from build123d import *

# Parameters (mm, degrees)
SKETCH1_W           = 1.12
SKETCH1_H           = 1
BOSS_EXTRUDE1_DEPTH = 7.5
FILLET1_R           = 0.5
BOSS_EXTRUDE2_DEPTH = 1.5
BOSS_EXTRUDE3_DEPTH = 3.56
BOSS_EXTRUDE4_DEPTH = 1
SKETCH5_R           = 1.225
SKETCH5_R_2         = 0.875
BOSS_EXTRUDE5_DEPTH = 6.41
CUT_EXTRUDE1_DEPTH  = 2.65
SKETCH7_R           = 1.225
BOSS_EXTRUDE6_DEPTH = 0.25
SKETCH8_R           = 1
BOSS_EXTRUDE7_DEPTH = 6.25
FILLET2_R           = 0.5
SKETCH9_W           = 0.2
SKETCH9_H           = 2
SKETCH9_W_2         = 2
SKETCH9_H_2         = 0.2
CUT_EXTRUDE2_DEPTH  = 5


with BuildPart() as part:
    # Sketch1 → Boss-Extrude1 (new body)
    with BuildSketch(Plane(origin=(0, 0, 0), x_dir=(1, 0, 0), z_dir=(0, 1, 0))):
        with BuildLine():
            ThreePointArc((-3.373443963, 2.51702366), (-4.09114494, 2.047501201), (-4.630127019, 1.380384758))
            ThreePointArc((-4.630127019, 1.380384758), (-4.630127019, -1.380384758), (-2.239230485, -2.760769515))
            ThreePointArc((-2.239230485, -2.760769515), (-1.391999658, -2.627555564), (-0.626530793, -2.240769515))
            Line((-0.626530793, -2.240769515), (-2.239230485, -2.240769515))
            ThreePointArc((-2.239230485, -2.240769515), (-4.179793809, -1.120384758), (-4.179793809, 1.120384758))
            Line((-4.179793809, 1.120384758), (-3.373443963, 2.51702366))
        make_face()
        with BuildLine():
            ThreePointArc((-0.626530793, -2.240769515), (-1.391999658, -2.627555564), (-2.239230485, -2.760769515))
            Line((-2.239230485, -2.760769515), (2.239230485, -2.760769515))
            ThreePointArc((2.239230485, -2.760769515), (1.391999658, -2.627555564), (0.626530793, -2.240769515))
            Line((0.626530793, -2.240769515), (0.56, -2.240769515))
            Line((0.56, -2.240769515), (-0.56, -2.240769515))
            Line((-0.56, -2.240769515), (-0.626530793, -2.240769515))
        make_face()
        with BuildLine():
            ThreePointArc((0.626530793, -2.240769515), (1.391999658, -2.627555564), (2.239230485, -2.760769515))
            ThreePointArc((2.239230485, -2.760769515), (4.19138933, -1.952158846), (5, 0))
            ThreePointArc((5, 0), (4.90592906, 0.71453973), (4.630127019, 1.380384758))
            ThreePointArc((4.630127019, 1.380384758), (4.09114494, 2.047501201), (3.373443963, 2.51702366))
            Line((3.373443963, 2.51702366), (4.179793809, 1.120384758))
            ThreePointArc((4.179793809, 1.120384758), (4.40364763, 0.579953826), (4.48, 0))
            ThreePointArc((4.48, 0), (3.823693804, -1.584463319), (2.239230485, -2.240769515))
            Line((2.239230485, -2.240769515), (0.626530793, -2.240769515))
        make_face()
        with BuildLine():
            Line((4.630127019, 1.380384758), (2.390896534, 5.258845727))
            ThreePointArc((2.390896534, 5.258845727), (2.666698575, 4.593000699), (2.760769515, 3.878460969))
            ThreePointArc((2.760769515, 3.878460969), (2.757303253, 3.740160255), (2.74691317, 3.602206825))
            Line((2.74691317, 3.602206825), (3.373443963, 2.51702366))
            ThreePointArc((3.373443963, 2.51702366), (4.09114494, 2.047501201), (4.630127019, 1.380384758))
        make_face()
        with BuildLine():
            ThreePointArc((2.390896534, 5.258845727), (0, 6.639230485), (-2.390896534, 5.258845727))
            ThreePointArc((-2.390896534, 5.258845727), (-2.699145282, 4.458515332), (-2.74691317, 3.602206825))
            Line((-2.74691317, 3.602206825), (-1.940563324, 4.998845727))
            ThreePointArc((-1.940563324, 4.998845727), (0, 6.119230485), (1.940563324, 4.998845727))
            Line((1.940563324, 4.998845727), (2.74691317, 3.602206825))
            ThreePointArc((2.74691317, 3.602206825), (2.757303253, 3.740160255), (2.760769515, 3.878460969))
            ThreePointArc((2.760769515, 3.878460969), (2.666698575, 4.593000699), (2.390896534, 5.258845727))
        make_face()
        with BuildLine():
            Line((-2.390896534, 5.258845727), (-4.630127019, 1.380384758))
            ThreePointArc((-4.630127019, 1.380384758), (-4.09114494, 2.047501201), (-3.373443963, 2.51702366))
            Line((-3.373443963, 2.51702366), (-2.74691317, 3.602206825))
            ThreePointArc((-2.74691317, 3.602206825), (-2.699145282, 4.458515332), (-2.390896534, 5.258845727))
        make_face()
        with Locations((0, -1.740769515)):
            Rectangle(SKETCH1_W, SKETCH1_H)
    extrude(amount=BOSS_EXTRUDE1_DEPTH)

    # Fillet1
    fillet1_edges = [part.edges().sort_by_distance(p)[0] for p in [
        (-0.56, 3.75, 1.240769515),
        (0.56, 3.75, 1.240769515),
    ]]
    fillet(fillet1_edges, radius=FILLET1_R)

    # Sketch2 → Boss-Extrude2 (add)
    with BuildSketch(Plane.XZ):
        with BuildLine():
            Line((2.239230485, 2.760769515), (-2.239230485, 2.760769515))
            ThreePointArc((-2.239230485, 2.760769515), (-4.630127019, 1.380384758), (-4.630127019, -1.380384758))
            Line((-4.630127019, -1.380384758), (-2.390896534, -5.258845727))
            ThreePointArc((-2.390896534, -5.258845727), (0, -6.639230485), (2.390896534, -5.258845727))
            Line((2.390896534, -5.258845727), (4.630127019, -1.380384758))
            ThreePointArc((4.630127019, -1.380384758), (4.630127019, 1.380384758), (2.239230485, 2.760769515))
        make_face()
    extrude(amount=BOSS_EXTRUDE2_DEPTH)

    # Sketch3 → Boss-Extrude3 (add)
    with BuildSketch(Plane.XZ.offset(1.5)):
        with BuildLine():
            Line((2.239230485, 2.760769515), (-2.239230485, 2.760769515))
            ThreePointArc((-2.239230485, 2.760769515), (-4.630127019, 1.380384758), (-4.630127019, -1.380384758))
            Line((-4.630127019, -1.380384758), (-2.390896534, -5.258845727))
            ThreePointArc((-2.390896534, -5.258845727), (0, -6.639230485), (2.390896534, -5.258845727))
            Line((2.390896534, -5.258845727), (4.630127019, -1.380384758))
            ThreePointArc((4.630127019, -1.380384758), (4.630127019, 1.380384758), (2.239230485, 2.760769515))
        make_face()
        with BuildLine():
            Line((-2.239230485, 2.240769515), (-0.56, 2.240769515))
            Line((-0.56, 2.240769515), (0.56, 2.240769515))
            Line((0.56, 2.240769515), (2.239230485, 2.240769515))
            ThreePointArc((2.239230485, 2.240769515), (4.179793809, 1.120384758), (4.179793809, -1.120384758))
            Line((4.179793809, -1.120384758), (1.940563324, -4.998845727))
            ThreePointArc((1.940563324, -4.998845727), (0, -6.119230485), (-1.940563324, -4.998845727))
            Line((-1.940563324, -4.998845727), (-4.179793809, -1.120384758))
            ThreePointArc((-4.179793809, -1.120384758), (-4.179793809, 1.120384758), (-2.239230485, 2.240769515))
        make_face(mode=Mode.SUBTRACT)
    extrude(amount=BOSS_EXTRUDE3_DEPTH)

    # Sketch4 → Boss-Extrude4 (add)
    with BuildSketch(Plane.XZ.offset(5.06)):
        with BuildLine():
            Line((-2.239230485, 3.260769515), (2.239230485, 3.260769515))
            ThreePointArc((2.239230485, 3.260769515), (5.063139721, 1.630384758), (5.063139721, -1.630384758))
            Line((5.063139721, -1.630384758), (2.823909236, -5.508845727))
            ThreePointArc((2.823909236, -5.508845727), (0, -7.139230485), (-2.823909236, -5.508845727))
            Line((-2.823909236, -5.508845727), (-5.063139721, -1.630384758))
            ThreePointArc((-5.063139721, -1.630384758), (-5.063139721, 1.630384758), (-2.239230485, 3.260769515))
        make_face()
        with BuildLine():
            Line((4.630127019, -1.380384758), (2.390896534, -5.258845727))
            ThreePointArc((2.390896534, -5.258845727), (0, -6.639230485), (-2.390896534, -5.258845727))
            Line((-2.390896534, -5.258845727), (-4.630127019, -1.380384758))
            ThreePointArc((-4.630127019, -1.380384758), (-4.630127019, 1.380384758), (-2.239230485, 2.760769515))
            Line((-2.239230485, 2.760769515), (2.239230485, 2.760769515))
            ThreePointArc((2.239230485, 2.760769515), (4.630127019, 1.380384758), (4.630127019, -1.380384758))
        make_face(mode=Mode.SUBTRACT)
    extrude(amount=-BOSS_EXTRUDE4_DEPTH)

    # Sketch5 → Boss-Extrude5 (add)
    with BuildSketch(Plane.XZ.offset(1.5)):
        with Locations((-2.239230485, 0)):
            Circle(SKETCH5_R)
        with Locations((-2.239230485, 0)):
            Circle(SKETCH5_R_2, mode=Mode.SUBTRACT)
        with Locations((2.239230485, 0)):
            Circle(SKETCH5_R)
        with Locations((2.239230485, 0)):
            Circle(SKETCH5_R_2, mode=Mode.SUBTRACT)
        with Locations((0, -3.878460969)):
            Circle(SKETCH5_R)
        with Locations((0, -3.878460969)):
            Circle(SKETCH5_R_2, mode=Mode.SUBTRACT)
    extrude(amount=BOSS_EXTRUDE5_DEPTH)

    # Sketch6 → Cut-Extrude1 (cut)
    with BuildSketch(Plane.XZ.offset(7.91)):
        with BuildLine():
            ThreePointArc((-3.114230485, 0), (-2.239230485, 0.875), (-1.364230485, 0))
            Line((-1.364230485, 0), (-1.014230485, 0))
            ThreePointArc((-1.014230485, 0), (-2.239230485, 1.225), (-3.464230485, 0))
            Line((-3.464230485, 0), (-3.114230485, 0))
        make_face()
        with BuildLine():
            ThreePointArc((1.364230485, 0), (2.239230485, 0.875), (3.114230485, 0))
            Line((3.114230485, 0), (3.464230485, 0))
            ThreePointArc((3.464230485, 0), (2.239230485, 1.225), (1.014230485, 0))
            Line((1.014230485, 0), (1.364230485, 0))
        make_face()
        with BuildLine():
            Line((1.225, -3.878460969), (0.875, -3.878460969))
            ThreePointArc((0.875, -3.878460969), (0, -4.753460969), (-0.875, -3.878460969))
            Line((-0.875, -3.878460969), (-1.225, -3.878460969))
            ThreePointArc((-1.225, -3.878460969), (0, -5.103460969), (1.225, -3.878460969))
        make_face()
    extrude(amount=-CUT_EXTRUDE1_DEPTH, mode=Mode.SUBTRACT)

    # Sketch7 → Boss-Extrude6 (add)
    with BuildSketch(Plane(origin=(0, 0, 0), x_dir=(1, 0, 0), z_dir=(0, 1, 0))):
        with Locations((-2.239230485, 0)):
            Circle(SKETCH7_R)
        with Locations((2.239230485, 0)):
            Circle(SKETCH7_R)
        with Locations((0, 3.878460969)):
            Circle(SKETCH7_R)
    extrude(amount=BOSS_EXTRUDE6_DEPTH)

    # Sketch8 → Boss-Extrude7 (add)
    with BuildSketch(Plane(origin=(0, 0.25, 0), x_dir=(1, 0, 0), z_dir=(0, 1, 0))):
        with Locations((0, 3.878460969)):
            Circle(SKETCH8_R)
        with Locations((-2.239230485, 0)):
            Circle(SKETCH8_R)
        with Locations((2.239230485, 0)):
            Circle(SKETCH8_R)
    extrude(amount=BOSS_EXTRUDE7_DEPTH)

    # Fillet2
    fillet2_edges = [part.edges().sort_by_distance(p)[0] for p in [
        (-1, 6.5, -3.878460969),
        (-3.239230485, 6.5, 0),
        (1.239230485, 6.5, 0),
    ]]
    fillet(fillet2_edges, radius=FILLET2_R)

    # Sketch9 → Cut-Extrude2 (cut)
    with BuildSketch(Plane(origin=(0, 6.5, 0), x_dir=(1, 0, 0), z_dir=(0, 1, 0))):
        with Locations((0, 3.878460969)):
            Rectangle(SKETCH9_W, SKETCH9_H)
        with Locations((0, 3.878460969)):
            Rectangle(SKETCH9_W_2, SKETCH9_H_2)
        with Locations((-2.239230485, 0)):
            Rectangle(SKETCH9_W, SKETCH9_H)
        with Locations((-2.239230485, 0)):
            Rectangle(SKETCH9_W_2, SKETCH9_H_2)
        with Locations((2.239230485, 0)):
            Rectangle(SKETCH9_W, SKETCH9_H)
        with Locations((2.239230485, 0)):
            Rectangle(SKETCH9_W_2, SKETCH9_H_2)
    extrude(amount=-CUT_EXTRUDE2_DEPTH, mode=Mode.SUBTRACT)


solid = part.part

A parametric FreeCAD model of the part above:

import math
import FreeCAD as App
import Part
import Sketcher
Q = App.Units.Quantity


def edges_at(feature, points):
    """Names of the edges that pass closest to the given points."""
    edges = feature.Shape.Edges
    near = lambda p: min(range(len(edges)), key=lambda i: edges[i].distToShape(Part.Vertex(*p))[0])
    return sorted({f"Edge{near(p) + 1}" for p in points})


def add_polygon(sketch, points):
    """Adds a closed chain of lines whose ends are joined by coincident constraints."""
    first, n = sketch.GeometryCount, len(points)
    for a, b in zip(points, points[1:] + points[:1]):
        sketch.addGeometry(Part.LineSegment(App.Vector(*a, 0), App.Vector(*b, 0)), False)
    for i in range(n):
        sketch.addConstraint(Sketcher.Constraint("Coincident", first + i, 2, first + (i + 1) % n, 1))

doc = App.newDocument("Part")
body = doc.addObject("PartDesign::Body", "Body")

# Sketch on XZ plane
sketch1 = body.newObject("Sketcher::SketchObject", "Sketch")
sketch1.AttachmentSupport = (doc.getObject("XZ_Plane"), [""])
sketch1.MapMode = "FlatFace"
sketch1.addGeometry(Part.ArcOfCircle(Part.Circle(App.Vector(-2.2, 0, 0), App.Vector(0, 0, 1), 2.8), math.radians(90), math.radians(210)), False)
sketch1.addGeometry(Part.LineSegment(App.Vector(-2.2, 2.8, 0), App.Vector(2.2, 2.8, 0)), False)
sketch1.addGeometry(Part.ArcOfCircle(Part.Circle(App.Vector(2.2, 0, 0), App.Vector(0, 0, 1), 2.8), math.radians(0), math.radians(90)), False)
sketch1.addGeometry(Part.ArcOfCircle(Part.Circle(App.Vector(2.2, 0, 0), App.Vector(0, 0, 1), 2.8), math.radians(-30), math.radians(0)), False)
sketch1.addGeometry(Part.LineSegment(App.Vector(4.6, -1.4, 0), App.Vector(2.4, -5.3, 0)), False)
sketch1.addGeometry(Part.ArcOfCircle(Part.Circle(App.Vector(0, -3.9, 0), App.Vector(0, 0, 1), 2.8), math.radians(-150), math.radians(-30)), False)
sketch1.addGeometry(Part.LineSegment(App.Vector(-2.4, -5.3, 0), App.Vector(-4.6, -1.4, 0)), False)
sketch1.addGeometry(Part.LineSegment(App.Vector(-2.7, -3.6, 0), App.Vector(-1.9, -5, 0)), False)
sketch1.addGeometry(Part.ArcOfCircle(Part.Circle(App.Vector(0, -3.9, 0), App.Vector(0, 0, 1), 2.2), math.radians(-150), math.radians(-30)), False)
sketch1.addGeometry(Part.LineSegment(App.Vector(1.9, -5, 0), App.Vector(2.7, -3.6, 0)), False)
sketch1.addGeometry(Part.LineSegment(App.Vector(2.7, -3.6, 0), App.Vector(3.4, -2.5, 0)), False)
sketch1.addGeometry(Part.LineSegment(App.Vector(3.4, -2.5, 0), App.Vector(4.2, -1.1, 0)), False)
sketch1.addGeometry(Part.ArcOfCircle(Part.Circle(App.Vector(2.2, 0, 0), App.Vector(0, 0, 1), 2.2), math.radians(-30), math.radians(0)), False)
sketch1.addGeometry(Part.ArcOfCircle(Part.Circle(App.Vector(2.2, 0, 0), App.Vector(0, 0, 1), 2.2), math.radians(0), math.radians(90)), False)
sketch1.addGeometry(Part.LineSegment(App.Vector(2.2, 2.2, 0), App.Vector(0.6, 2.2, 0)), False)
sketch1.addGeometry(Part.LineSegment(App.Vector(0.6, 2.2, 0), App.Vector(0.6, 1.2, 0)), False)
sketch1.addGeometry(Part.LineSegment(App.Vector(0.6, 1.2, 0), App.Vector(-0.6, 1.2, 0)), False)
sketch1.addGeometry(Part.LineSegment(App.Vector(-0.6, 1.2, 0), App.Vector(-0.6, 2.2, 0)), False)
sketch1.addGeometry(Part.LineSegment(App.Vector(-0.6, 2.2, 0), App.Vector(-2.2, 2.2, 0)), False)
sketch1.addGeometry(Part.ArcOfCircle(Part.Circle(App.Vector(-2.2, 0, 0), App.Vector(0, 0, 1), 2.2), math.radians(90), math.radians(210)), False)
sketch1.addGeometry(Part.LineSegment(App.Vector(-4.2, -1.1, 0), App.Vector(-3.4, -2.5, 0)), False)
sketch1.addGeometry(Part.LineSegment(App.Vector(-3.4, -2.5, 0), App.Vector(-2.7, -3.6, 0)), False)
sketch1.addConstraint(Sketcher.Constraint("Tangent", 0, 1, 1, 1))
sketch1.addConstraint(Sketcher.Constraint("Tangent", 1, 2, 2, 2))
sketch1.addConstraint(Sketcher.Constraint("Tangent", 2, 1, 3, 2))
sketch1.addConstraint(Sketcher.Constraint("Tangent", 3, 1, 4, 1))
sketch1.addConstraint(Sketcher.Constraint("Tangent", 4, 2, 5, 2))
sketch1.addConstraint(Sketcher.Constraint("Tangent", 5, 1, 6, 1))
sketch1.addConstraint(Sketcher.Constraint("Tangent", 6, 2, 0, 2))
sketch1.addConstraint(Sketcher.Constraint("Tangent", 7, 2, 8, 1))
sketch1.addConstraint(Sketcher.Constraint("Tangent", 8, 2, 9, 1))
sketch1.addConstraint(Sketcher.Constraint("Coincident", 9, 2, 10, 1))
sketch1.addConstraint(Sketcher.Constraint("Coincident", 10, 2, 11, 1))
sketch1.addConstraint(Sketcher.Constraint("Tangent", 11, 2, 12, 1))
sketch1.addConstraint(Sketcher.Constraint("Tangent", 12, 2, 13, 1))
sketch1.addConstraint(Sketcher.Constraint("Tangent", 13, 2, 14, 1))
sketch1.addConstraint(Sketcher.Constraint("Coincident", 14, 2, 15, 1))
sketch1.addConstraint(Sketcher.Constraint("Coincident", 15, 2, 16, 1))
sketch1.addConstraint(Sketcher.Constraint("Coincident", 16, 2, 17, 1))
sketch1.addConstraint(Sketcher.Constraint("Coincident", 17, 2, 18, 1))
sketch1.addConstraint(Sketcher.Constraint("Tangent", 18, 2, 19, 1))
sketch1.addConstraint(Sketcher.Constraint("Tangent", 19, 2, 20, 1))
sketch1.addConstraint(Sketcher.Constraint("Coincident", 20, 2, 21, 1))
sketch1.addConstraint(Sketcher.Constraint("Coincident", 21, 2, 7, 1))
sketch1.addConstraint(Sketcher.Constraint("Horizontal", 1))
sketch1.addConstraint(Sketcher.Constraint("Horizontal", 14))
sketch1.addConstraint(Sketcher.Constraint("Vertical", 15))
sketch1.addConstraint(Sketcher.Constraint("Horizontal", 16))
sketch1.addConstraint(Sketcher.Constraint("Vertical", 17))
sketch1.addConstraint(Sketcher.Constraint("Horizontal", 18))
sketch1.addConstraint(Sketcher.Constraint("Coincident", 8, 3, 5, 3))
sketch1.addConstraint(Sketcher.Constraint("Coincident", 12, 3, 2, 3))
sketch1.addConstraint(Sketcher.Constraint("Coincident", 19, 3, 0, 3))
sketch1.addConstraint(Sketcher.Constraint("Equal", 0, 2))
sketch1.addConstraint(Sketcher.Constraint("Equal", 2, 3))
sketch1.addConstraint(Sketcher.Constraint("Equal", 3, 5))
sketch1.addConstraint(Sketcher.Constraint("Equal", 8, 12))
sketch1.addConstraint(Sketcher.Constraint("Equal", 12, 13))
sketch1.addConstraint(Sketcher.Constraint("Equal", 13, 19))
sketch1.addConstraint(Sketcher.Constraint("Symmetric", 0, 3, 2, 3, -1, 1))
sketch1.addConstraint(Sketcher.Constraint("Symmetric", 7, 2, 8, 2, -2))
sketch1.addConstraint(Sketcher.Constraint("Symmetric", 10, 2, 20, 2, -2))
sketch1.addConstraint(Sketcher.Constraint("PointOnObject", 2, 1, -1))
sketch1.addConstraint(Sketcher.Constraint("PointOnObject", 12, 2, -1))
sketch1.addConstraint(Sketcher.Constraint("Parallel", 6, 7))
sketch1.addConstraint(Sketcher.Constraint("Parallel", 9, 10))
sketch1.addConstraint(Sketcher.Constraint("Horizontal", 9, 2, 21, 2))
sketch1.addConstraint(Sketcher.Constraint("Equal", 14, 18))
sketch1.addConstraint(Sketcher.Constraint("Equal", 9, 11))
sketch1.addConstraint(Sketcher.Constraint("DistanceY", 15, 2, 15, 1, Q("1 mm")))
sketch1.addConstraint(Sketcher.Constraint("Angle", 4, Q("-120 deg")))
sketch1.addConstraint(Sketcher.Constraint("DistanceX", -1, 1, 2, 1, Q("5 mm")))
sketch1.addConstraint(Sketcher.Constraint("DistanceX", 16, 2, 16, 1, Q("1.12 mm")))
sketch1.addConstraint(Sketcher.Constraint("DistanceX", -1, 1, 12, 2, Q("4.48 mm")))
sketch1.addConstraint(Sketcher.Constraint("Radius", 0, Q("2.76077 mm")))
sketch1.addConstraint(Sketcher.Constraint("Distance", 7, Q("1.6127 mm")))
pad1 = body.newObject("PartDesign::Pad", "Pad")
pad1.Profile = sketch1
pad1.Length = 7.5
pad1.Reversed = True
doc.recompute()

fillet = body.newObject("PartDesign::Fillet", "Fillet")
fillet.Base = (pad1, edges_at(pad1, [(-0.56, 3.75, 1.241), (0.56, 3.75, 1.241)]))
fillet.Radius = 0.5

# Sketch on XZ plane
sketch2 = body.newObject("Sketcher::SketchObject", "Sketch001")
sketch2.AttachmentSupport = (doc.getObject("XZ_Plane"), [""])
sketch2.MapMode = "FlatFace"
sketch2.addGeometry(Part.LineSegment(App.Vector(2.2, 2.8, 0), App.Vector(-2.2, 2.8, 0)), False)
sketch2.addGeometry(Part.ArcOfCircle(Part.Circle(App.Vector(-2.2, 0, 0), App.Vector(0, 0, 1), 2.8), math.radians(90), math.radians(210)), False)
sketch2.addGeometry(Part.LineSegment(App.Vector(-4.6, -1.4, 0), App.Vector(-2.4, -5.3, 0)), False)
sketch2.addGeometry(Part.ArcOfCircle(Part.Circle(App.Vector(0, -3.9, 0), App.Vector(0, 0, 1), 2.8), math.radians(-150), math.radians(-30)), False)
sketch2.addGeometry(Part.LineSegment(App.Vector(2.4, -5.3, 0), App.Vector(4.6, -1.4, 0)), False)
sketch2.addGeometry(Part.ArcOfCircle(Part.Circle(App.Vector(2.2, 0, 0), App.Vector(0, 0, 1), 2.8), math.radians(-30), math.radians(90)), False)
sketch2.addConstraint(Sketcher.Constraint("Tangent", 0, 2, 1, 1))
sketch2.addConstraint(Sketcher.Constraint("Tangent", 1, 2, 2, 1))
sketch2.addConstraint(Sketcher.Constraint("Tangent", 2, 2, 3, 1))
sketch2.addConstraint(Sketcher.Constraint("Tangent", 3, 2, 4, 1))
sketch2.addConstraint(Sketcher.Constraint("Tangent", 4, 2, 5, 1))
sketch2.addConstraint(Sketcher.Constraint("Tangent", 5, 2, 0, 1))
sketch2.addConstraint(Sketcher.Constraint("Horizontal", 0))
sketch2.addConstraint(Sketcher.Constraint("Equal", 1, 3))
sketch2.addConstraint(Sketcher.Constraint("Equal", 3, 5))
sketch2.addConstraint(Sketcher.Constraint("Symmetric", 1, 3, 5, 3, -1, 1))
sketch2.addConstraint(Sketcher.Constraint("PointOnObject", 3, 3, -2))
sketch2.addConstraint(Sketcher.Constraint("Angle", 2, Q("-60 deg")))
sketch2.addConstraint(Sketcher.Constraint("Radius", 1, Q("2.76077 mm")))
sketch2.addConstraint(Sketcher.Constraint("DistanceX", 0, 2, 0, 1, Q("4.478461 mm")))
pad2 = body.newObject("PartDesign::Pad", "Pad001")
pad2.Profile = sketch2
pad2.Length = 1.5

# Sketch on XZ plane
sketch3 = body.newObject("Sketcher::SketchObject", "Sketch002")
sketch3.AttachmentSupport = (doc.getObject("XZ_Plane"), [""])
sketch3.MapMode = "FlatFace"
sketch3.AttachmentOffset = App.Placement(App.Vector(0, 0, 1.5), App.Rotation())
sketch3.addGeometry(Part.LineSegment(App.Vector(2.2, 2.8, 0), App.Vector(-2.2, 2.8, 0)), False)
sketch3.addGeometry(Part.ArcOfCircle(Part.Circle(App.Vector(-2.2, 0, 0), App.Vector(0, 0, 1), 2.8), math.radians(90), math.radians(210)), False)
sketch3.addGeometry(Part.LineSegment(App.Vector(-4.6, -1.4, 0), App.Vector(-2.4, -5.3, 0)), False)
sketch3.addGeometry(Part.ArcOfCircle(Part.Circle(App.Vector(0, -3.9, 0), App.Vector(0, 0, 1), 2.8), math.radians(-150), math.radians(-30)), False)
sketch3.addGeometry(Part.LineSegment(App.Vector(2.4, -5.3, 0), App.Vector(4.6, -1.4, 0)), False)
sketch3.addGeometry(Part.ArcOfCircle(Part.Circle(App.Vector(2.2, 0, 0), App.Vector(0, 0, 1), 2.8), math.radians(-30), math.radians(90)), False)
sketch3.addGeometry(Part.ArcOfCircle(Part.Circle(App.Vector(-2.2, 0, 0), App.Vector(0, 0, 1), 2.2), math.radians(90), math.radians(210)), False)
sketch3.addGeometry(Part.LineSegment(App.Vector(-2.2, 2.2, 0), App.Vector(2.2, 2.2, 0)), False)
sketch3.addGeometry(Part.ArcOfCircle(Part.Circle(App.Vector(2.2, 0, 0), App.Vector(0, 0, 1), 2.2), math.radians(-30), math.radians(90)), False)
sketch3.addGeometry(Part.LineSegment(App.Vector(4.2, -1.1, 0), App.Vector(1.9, -5, 0)), False)
sketch3.addGeometry(Part.ArcOfCircle(Part.Circle(App.Vector(0, -3.9, 0), App.Vector(0, 0, 1), 2.2), math.radians(-150), math.radians(-30)), False)
sketch3.addGeometry(Part.LineSegment(App.Vector(-1.9, -5, 0), App.Vector(-4.2, -1.1, 0)), False)
sketch3.addConstraint(Sketcher.Constraint("Tangent", 0, 2, 1, 1))
sketch3.addConstraint(Sketcher.Constraint("Tangent", 1, 2, 2, 1))
sketch3.addConstraint(Sketcher.Constraint("Tangent", 2, 2, 3, 1))
sketch3.addConstraint(Sketcher.Constraint("Tangent", 3, 2, 4, 1))
sketch3.addConstraint(Sketcher.Constraint("Tangent", 4, 2, 5, 1))
sketch3.addConstraint(Sketcher.Constraint("Tangent", 5, 2, 0, 1))
sketch3.addConstraint(Sketcher.Constraint("Tangent", 6, 1, 7, 1))
sketch3.addConstraint(Sketcher.Constraint("Tangent", 7, 2, 8, 2))
sketch3.addConstraint(Sketcher.Constraint("Tangent", 8, 1, 9, 1))
sketch3.addConstraint(Sketcher.Constraint("Tangent", 9, 2, 10, 2))
sketch3.addConstraint(Sketcher.Constraint("Tangent", 10, 1, 11, 1))
sketch3.addConstraint(Sketcher.Constraint("Tangent", 11, 2, 6, 2))
sketch3.addConstraint(Sketcher.Constraint("Horizontal", 0))
sketch3.addConstraint(Sketcher.Constraint("Horizontal", 7))
sketch3.addConstraint(Sketcher.Constraint("Coincident", 6, 3, 1, 3))
sketch3.addConstraint(Sketcher.Constraint("Coincident", 8, 3, 5, 3))
sketch3.addConstraint(Sketcher.Constraint("Coincident", 10, 3, 3, 3))
sketch3.addConstraint(Sketcher.Constraint("Equal", 1, 3))
sketch3.addConstraint(Sketcher.Constraint("Equal", 3, 5))
sketch3.addConstraint(Sketcher.Constraint("Equal", 8, 10))
sketch3.addConstraint(Sketcher.Constraint("Symmetric", 1, 3, 5, 3, -1, 1))
sketch3.addConstraint(Sketcher.Constraint("PointOnObject", 3, 3, -2))
sketch3.addConstraint(Sketcher.Constraint("Angle", 2, Q("-60 deg")))
sketch3.addConstraint(Sketcher.Constraint("Radius", 1, Q("2.76077 mm")))
sketch3.addConstraint(Sketcher.Constraint("Radius", 6, Q("2.24077 mm")))
sketch3.addConstraint(Sketcher.Constraint("DistanceX", 0, 2, 0, 1, Q("4.478461 mm")))
pad3 = body.newObject("PartDesign::Pad", "Pad002")
pad3.Profile = sketch3
pad3.Length = 3.56

# Sketch on XZ plane
sketch4 = body.newObject("Sketcher::SketchObject", "Sketch003")
sketch4.AttachmentSupport = (doc.getObject("XZ_Plane"), [""])
sketch4.MapMode = "FlatFace"
sketch4.AttachmentOffset = App.Placement(App.Vector(0, 0, 5.06), App.Rotation())
sketch4.addGeometry(Part.LineSegment(App.Vector(2.2, 3.3, 0), App.Vector(-2.2, 3.3, 0)), False)
sketch4.addGeometry(Part.ArcOfCircle(Part.Circle(App.Vector(-2.2, 0, 0), App.Vector(0, 0, 1), 3.3), math.radians(90), math.radians(210)), False)
sketch4.addGeometry(Part.LineSegment(App.Vector(-5.1, -1.6, 0), App.Vector(-2.8, -5.5, 0)), False)
sketch4.addGeometry(Part.ArcOfCircle(Part.Circle(App.Vector(0, -3.9, 0), App.Vector(0, 0, 1), 3.3), math.radians(-150), math.radians(-30)), False)
sketch4.addGeometry(Part.LineSegment(App.Vector(2.8, -5.5, 0), App.Vector(5.1, -1.6, 0)), False)
sketch4.addGeometry(Part.ArcOfCircle(Part.Circle(App.Vector(2.2, 0, 0), App.Vector(0, 0, 1), 3.3), math.radians(-30), math.radians(90)), False)
sketch4.addGeometry(Part.LineSegment(App.Vector(4.6, -1.4, 0), App.Vector(2.4, -5.3, 0)), False)
sketch4.addGeometry(Part.ArcOfCircle(Part.Circle(App.Vector(0, -3.9, 0), App.Vector(0, 0, 1), 2.8), math.radians(-150), math.radians(-30)), False)
sketch4.addGeometry(Part.LineSegment(App.Vector(-2.4, -5.3, 0), App.Vector(-4.6, -1.4, 0)), False)
sketch4.addGeometry(Part.ArcOfCircle(Part.Circle(App.Vector(-2.2, 0, 0), App.Vector(0, 0, 1), 2.8), math.radians(90), math.radians(210)), False)
sketch4.addGeometry(Part.LineSegment(App.Vector(-2.2, 2.8, 0), App.Vector(2.2, 2.8, 0)), False)
sketch4.addGeometry(Part.ArcOfCircle(Part.Circle(App.Vector(2.2, 0, 0), App.Vector(0, 0, 1), 2.8), math.radians(-30), math.radians(90)), False)
sketch4.addConstraint(Sketcher.Constraint("Tangent", 0, 2, 1, 1))
sketch4.addConstraint(Sketcher.Constraint("Tangent", 1, 2, 2, 1))
sketch4.addConstraint(Sketcher.Constraint("Tangent", 2, 2, 3, 1))
sketch4.addConstraint(Sketcher.Constraint("Tangent", 3, 2, 4, 1))
sketch4.addConstraint(Sketcher.Constraint("Tangent", 4, 2, 5, 1))
sketch4.addConstraint(Sketcher.Constraint("Tangent", 5, 2, 0, 1))
sketch4.addConstraint(Sketcher.Constraint("Tangent", 6, 2, 7, 2))
sketch4.addConstraint(Sketcher.Constraint("Tangent", 7, 1, 8, 1))
sketch4.addConstraint(Sketcher.Constraint("Tangent", 8, 2, 9, 2))
sketch4.addConstraint(Sketcher.Constraint("Tangent", 9, 1, 10, 1))
sketch4.addConstraint(Sketcher.Constraint("Tangent", 10, 2, 11, 2))
sketch4.addConstraint(Sketcher.Constraint("Tangent", 11, 1, 6, 1))
sketch4.addConstraint(Sketcher.Constraint("Horizontal", 0))
sketch4.addConstraint(Sketcher.Constraint("Horizontal", 10))
sketch4.addConstraint(Sketcher.Constraint("Coincident", 7, 3, 3, 3))
sketch4.addConstraint(Sketcher.Constraint("Coincident", 9, 3, 1, 3))
sketch4.addConstraint(Sketcher.Constraint("Coincident", 11, 3, 5, 3))
sketch4.addConstraint(Sketcher.Constraint("Equal", 1, 3))
sketch4.addConstraint(Sketcher.Constraint("Equal", 3, 5))
sketch4.addConstraint(Sketcher.Constraint("Equal", 7, 9))
sketch4.addConstraint(Sketcher.Constraint("Symmetric", 1, 3, 5, 3, -1, 1))
sketch4.addConstraint(Sketcher.Constraint("PointOnObject", 3, 3, -2))
sketch4.addConstraint(Sketcher.Constraint("Angle", 2, Q("-60 deg")))
sketch4.addConstraint(Sketcher.Constraint("DistanceY", 9, 1, 0, 2, Q("0.5 mm")))
sketch4.addConstraint(Sketcher.Constraint("Radius", 1, Q("3.26077 mm")))
sketch4.addConstraint(Sketcher.Constraint("DistanceX", 0, 2, 0, 1, Q("4.478461 mm")))
pad4 = body.newObject("PartDesign::Pad", "Pad003")
pad4.Profile = sketch4
pad4.Length = 1
pad4.Reversed = True

# Sketch on XZ plane
sketch5 = body.newObject("Sketcher::SketchObject", "Sketch004")
sketch5.AttachmentSupport = (doc.getObject("XZ_Plane"), [""])
sketch5.MapMode = "FlatFace"
sketch5.AttachmentOffset = App.Placement(App.Vector(0, 0, 1.5), App.Rotation())
sketch5.addGeometry(Part.Circle(App.Vector(-2.2, 0, 0), App.Vector(0, 0, 1), 1.2), False)
sketch5.addGeometry(Part.Circle(App.Vector(-2.2, 0, 0), App.Vector(0, 0, 1), 0.9), False)
sketch5.addGeometry(Part.Circle(App.Vector(2.2, 0, 0), App.Vector(0, 0, 1), 1.2), False)
sketch5.addGeometry(Part.Circle(App.Vector(2.2, 0, 0), App.Vector(0, 0, 1), 0.9), False)
sketch5.addGeometry(Part.Circle(App.Vector(0, -3.9, 0), App.Vector(0, 0, 1), 1.2), False)
sketch5.addGeometry(Part.Circle(App.Vector(0, -3.9, 0), App.Vector(0, 0, 1), 0.9), False)
sketch5.addConstraint(Sketcher.Constraint("Coincident", 1, 3, 0, 3))
sketch5.addConstraint(Sketcher.Constraint("Coincident", 3, 3, 2, 3))
sketch5.addConstraint(Sketcher.Constraint("Coincident", 5, 3, 4, 3))
sketch5.addConstraint(Sketcher.Constraint("Equal", 0, 2))
sketch5.addConstraint(Sketcher.Constraint("Equal", 1, 3))
sketch5.addConstraint(Sketcher.Constraint("Equal", 2, 4))
sketch5.addConstraint(Sketcher.Constraint("Equal", 3, 5))
sketch5.addConstraint(Sketcher.Constraint("Symmetric", 0, 3, 2, 3, -1, 1))
sketch5.addConstraint(Sketcher.Constraint("PointOnObject", 0, 3, -1))
sketch5.addConstraint(Sketcher.Constraint("PointOnObject", 4, 3, -2))
sketch5.addConstraint(Sketcher.Constraint("Diameter", 0, Q("2.45 mm")))
sketch5.addConstraint(Sketcher.Constraint("Diameter", 1, Q("1.75 mm")))
sketch5.addConstraint(Sketcher.Constraint("DistanceX", 0, 3, -1, 1, Q("2.23923 mm")))
sketch5.addConstraint(Sketcher.Constraint("DistanceY", 4, 3, -1, 1, Q("3.878461 mm")))
pad5 = body.newObject("PartDesign::Pad", "Pad004")
pad5.Profile = sketch5
pad5.Length = 6.41

# Sketch on XZ plane
sketch6 = body.newObject("Sketcher::SketchObject", "Sketch005")
sketch6.AttachmentSupport = (doc.getObject("XZ_Plane"), [""])
sketch6.MapMode = "FlatFace"
sketch6.AttachmentOffset = App.Placement(App.Vector(0, 0, 7.91), App.Rotation())
sketch6.addGeometry(Part.ArcOfCircle(Part.Circle(App.Vector(-2.24, 0, 0), App.Vector(0, 0, 1), 0.88), math.radians(0), math.radians(180)), False)
sketch6.addGeometry(Part.LineSegment(App.Vector(-1.36, 0, 0), App.Vector(-1.01, 0, 0)), False)
sketch6.addGeometry(Part.ArcOfCircle(Part.Circle(App.Vector(-2.24, 0, 0), App.Vector(0, 0, 1), 1.23), math.radians(0), math.radians(180)), False)
sketch6.addGeometry(Part.LineSegment(App.Vector(-3.46, 0, 0), App.Vector(-3.11, 0, 0)), False)
sketch6.addGeometry(Part.ArcOfCircle(Part.Circle(App.Vector(2.24, 0, 0), App.Vector(0, 0, 1), 0.88), math.radians(0), math.radians(180)), False)
sketch6.addGeometry(Part.LineSegment(App.Vector(3.11, 0, 0), App.Vector(3.46, 0, 0)), False)
sketch6.addGeometry(Part.ArcOfCircle(Part.Circle(App.Vector(2.24, 0, 0), App.Vector(0, 0, 1), 1.23), math.radians(0), math.radians(180)), False)
sketch6.addGeometry(Part.LineSegment(App.Vector(1.01, 0, 0), App.Vector(1.36, 0, 0)), False)
sketch6.addGeometry(Part.LineSegment(App.Vector(1.23, -3.88, 0), App.Vector(0.88, -3.88, 0)), False)
sketch6.addGeometry(Part.ArcOfCircle(Part.Circle(App.Vector(0, -3.88, 0), App.Vector(0, 0, 1), 0.88), math.radians(180), math.radians(360)), False)
sketch6.addGeometry(Part.LineSegment(App.Vector(-0.88, -3.88, 0), App.Vector(-1.23, -3.88, 0)), False)
sketch6.addGeometry(Part.ArcOfCircle(Part.Circle(App.Vector(0, -3.88, 0), App.Vector(0, 0, 1), 1.23), math.radians(180), math.radians(360)), False)
sketch6.addConstraint(Sketcher.Constraint("Coincident", 0, 1, 1, 1))
sketch6.addConstraint(Sketcher.Constraint("Coincident", 1, 2, 2, 1))
sketch6.addConstraint(Sketcher.Constraint("Coincident", 2, 2, 3, 1))
sketch6.addConstraint(Sketcher.Constraint("Coincident", 3, 2, 0, 2))
sketch6.addConstraint(Sketcher.Constraint("Coincident", 4, 1, 5, 1))
sketch6.addConstraint(Sketcher.Constraint("Coincident", 5, 2, 6, 1))
sketch6.addConstraint(Sketcher.Constraint("Coincident", 6, 2, 7, 1))
sketch6.addConstraint(Sketcher.Constraint("Coincident", 7, 2, 4, 2))
sketch6.addConstraint(Sketcher.Constraint("Coincident", 8, 2, 9, 2))
sketch6.addConstraint(Sketcher.Constraint("Coincident", 9, 1, 10, 1))
sketch6.addConstraint(Sketcher.Constraint("Coincident", 10, 2, 11, 1))
sketch6.addConstraint(Sketcher.Constraint("Coincident", 11, 2, 8, 1))
sketch6.addConstraint(Sketcher.Constraint("Horizontal", 1))
sketch6.addConstraint(Sketcher.Constraint("Horizontal", 3))
sketch6.addConstraint(Sketcher.Constraint("Horizontal", 5))
sketch6.addConstraint(Sketcher.Constraint("Horizontal", 7))
sketch6.addConstraint(Sketcher.Constraint("Horizontal", 8))
sketch6.addConstraint(Sketcher.Constraint("Horizontal", 10))
sketch6.addConstraint(Sketcher.Constraint("Coincident", 2, 3, 0, 3))
sketch6.addConstraint(Sketcher.Constraint("Coincident", 6, 3, 4, 3))
sketch6.addConstraint(Sketcher.Constraint("Coincident", 11, 3, 9, 3))
sketch6.addConstraint(Sketcher.Constraint("Equal", 0, 4))
sketch6.addConstraint(Sketcher.Constraint("Equal", 2, 6))
sketch6.addConstraint(Sketcher.Constraint("Equal", 4, 9))
sketch6.addConstraint(Sketcher.Constraint("Equal", 6, 11))
sketch6.addConstraint(Sketcher.Constraint("Symmetric", 0, 3, 4, 3, -1, 1))
sketch6.addConstraint(Sketcher.Constraint("Symmetric", 8, 2, 9, 1, -2))
sketch6.addConstraint(Sketcher.Constraint("PointOnObject", 0, 3, -1))
sketch6.addConstraint(Sketcher.Constraint("PointOnObject", 0, 1, -1))
sketch6.addConstraint(Sketcher.Constraint("PointOnObject", 2, 2, -1))
sketch6.addConstraint(Sketcher.Constraint("PointOnObject", 4, 1, -1))
sketch6.addConstraint(Sketcher.Constraint("PointOnObject", 6, 2, -1))
sketch6.addConstraint(Sketcher.Constraint("Horizontal", 11, 3, 8, 2))
sketch6.addConstraint(Sketcher.Constraint("Radius", 0, Q("0.875 mm")))
sketch6.addConstraint(Sketcher.Constraint("Radius", 2, Q("1.225 mm")))
sketch6.addConstraint(Sketcher.Constraint("DistanceX", 0, 3, -1, 1, Q("2.23923 mm")))
sketch6.addConstraint(Sketcher.Constraint("DistanceY", 9, 3, -1, 1, Q("3.878461 mm")))
pocket1 = body.newObject("PartDesign::Pocket", "Pocket")
pocket1.Profile = sketch6
pocket1.Length = 2.65

# Sketch on XZ plane
sketch7 = body.newObject("Sketcher::SketchObject", "Sketch006")
sketch7.AttachmentSupport = (doc.getObject("XZ_Plane"), [""])
sketch7.MapMode = "FlatFace"
sketch7.addGeometry(Part.Circle(App.Vector(-2.2, 0, 0), App.Vector(0, 0, 1), 1.2), False)
sketch7.addGeometry(Part.Circle(App.Vector(2.2, 0, 0), App.Vector(0, 0, 1), 1.2), False)
sketch7.addGeometry(Part.Circle(App.Vector(0, -3.9, 0), App.Vector(0, 0, 1), 1.2), False)
sketch7.addConstraint(Sketcher.Constraint("Equal", 0, 1))
sketch7.addConstraint(Sketcher.Constraint("Equal", 1, 2))
sketch7.addConstraint(Sketcher.Constraint("Symmetric", 0, 3, 1, 3, -1, 1))
sketch7.addConstraint(Sketcher.Constraint("PointOnObject", 0, 3, -1))
sketch7.addConstraint(Sketcher.Constraint("PointOnObject", 2, 3, -2))
sketch7.addConstraint(Sketcher.Constraint("Diameter", 0, Q("2.45 mm")))
sketch7.addConstraint(Sketcher.Constraint("DistanceX", 0, 3, -1, 1, Q("2.23923 mm")))
sketch7.addConstraint(Sketcher.Constraint("DistanceY", 2, 3, -1, 1, Q("3.878461 mm")))
pad6 = body.newObject("PartDesign::Pad", "Pad005")
pad6.Profile = sketch7
pad6.Length = 0.25
pad6.Reversed = True

# Sketch on XZ plane
sketch8 = body.newObject("Sketcher::SketchObject", "Sketch007")
sketch8.AttachmentSupport = (doc.getObject("XZ_Plane"), [""])
sketch8.MapMode = "FlatFace"
sketch8.AttachmentOffset = App.Placement(App.Vector(0, 0, -0.25), App.Rotation())
sketch8.addGeometry(Part.Circle(App.Vector(0, -3.9, 0), App.Vector(0, 0, 1), 1), False)
sketch8.addGeometry(Part.Circle(App.Vector(-2.2, 0, 0), App.Vector(0, 0, 1), 1), False)
sketch8.addGeometry(Part.Circle(App.Vector(2.2, 0, 0), App.Vector(0, 0, 1), 1), False)
sketch8.addConstraint(Sketcher.Constraint("Equal", 0, 1))
sketch8.addConstraint(Sketcher.Constraint("Equal", 1, 2))
sketch8.addConstraint(Sketcher.Constraint("Symmetric", 1, 3, 2, 3, -1, 1))
sketch8.addConstraint(Sketcher.Constraint("PointOnObject", 0, 3, -2))
sketch8.addConstraint(Sketcher.Constraint("PointOnObject", 1, 3, -1))
sketch8.addConstraint(Sketcher.Constraint("Diameter", 0, Q("2 mm")))
sketch8.addConstraint(Sketcher.Constraint("DistanceY", 0, 3, -1, 1, Q("3.878461 mm")))
sketch8.addConstraint(Sketcher.Constraint("DistanceX", 1, 3, -1, 1, Q("2.23923 mm")))
pad7 = body.newObject("PartDesign::Pad", "Pad006")
pad7.Profile = sketch8
pad7.Length = 6.25
pad7.Reversed = True
doc.recompute()

fillet2 = body.newObject("PartDesign::Fillet", "Fillet001")
fillet2.Base = (pad7, edges_at(pad7, [(-1, 6.5, -3.878), (-3.239, 6.5, 0), (1.239, 6.5, 0)]))
fillet2.Radius = 0.5

# Sketch on XZ plane
sketch9 = body.newObject("Sketcher::SketchObject", "Sketch008")
sketch9.AttachmentSupport = (doc.getObject("XZ_Plane"), [""])
sketch9.MapMode = "FlatFace"
sketch9.AttachmentOffset = App.Placement(App.Vector(0, 0, -6.5), App.Rotation())
add_polygon(sketch9, [(-0.1, -3.78), (-0.1, -2.88), (0.1, -2.88), (0.1, -3.78), (1, -3.78), (1, -3.98), (0.1, -3.98), (0.1, -4.88), (-0.1, -4.88), (-0.1, -3.98), (-1, -3.98), (-1, -3.78)])  # lines 0-11
add_polygon(sketch9, [(-2.34, 0.1), (-2.34, 1), (-2.14, 1), (-2.14, 0.1), (-1.24, 0.1), (-1.24, -0.1), (-2.14, -0.1), (-2.14, -1), (-2.34, -1), (-2.34, -0.1), (-3.24, -0.1), (-3.24, 0.1)])  # lines 12-23
add_polygon(sketch9, [(2.14, 0.1), (2.14, 1), (2.34, 1), (2.34, 0.1), (3.24, 0.1), (3.24, -0.1), (2.34, -0.1), (2.34, -1), (2.14, -1), (2.14, -0.1), (1.24, -0.1), (1.24, 0.1)])  # lines 24-35
sketch9.addConstraint(Sketcher.Constraint("Vertical", 0))
sketch9.addConstraint(Sketcher.Constraint("Horizontal", 1))
sketch9.addConstraint(Sketcher.Constraint("Vertical", 2))
sketch9.addConstraint(Sketcher.Constraint("Horizontal", 3))
sketch9.addConstraint(Sketcher.Constraint("Vertical", 4))
sketch9.addConstraint(Sketcher.Constraint("Horizontal", 5))
sketch9.addConstraint(Sketcher.Constraint("Vertical", 6))
sketch9.addConstraint(Sketcher.Constraint("Horizontal", 7))
sketch9.addConstraint(Sketcher.Constraint("Vertical", 8))
sketch9.addConstraint(Sketcher.Constraint("Horizontal", 9))
sketch9.addConstraint(Sketcher.Constraint("Vertical", 10))
sketch9.addConstraint(Sketcher.Constraint("Horizontal", 11))
sketch9.addConstraint(Sketcher.Constraint("Vertical", 12))
sketch9.addConstraint(Sketcher.Constraint("Horizontal", 13))
sketch9.addConstraint(Sketcher.Constraint("Vertical", 14))
sketch9.addConstraint(Sketcher.Constraint("Horizontal", 15))
sketch9.addConstraint(Sketcher.Constraint("Vertical", 16))
sketch9.addConstraint(Sketcher.Constraint("Horizontal", 17))
sketch9.addConstraint(Sketcher.Constraint("Vertical", 18))
sketch9.addConstraint(Sketcher.Constraint("Horizontal", 19))
sketch9.addConstraint(Sketcher.Constraint("Vertical", 20))
sketch9.addConstraint(Sketcher.Constraint("Horizontal", 21))
sketch9.addConstraint(Sketcher.Constraint("Vertical", 22))
sketch9.addConstraint(Sketcher.Constraint("Horizontal", 23))
sketch9.addConstraint(Sketcher.Constraint("Vertical", 24))
sketch9.addConstraint(Sketcher.Constraint("Horizontal", 25))
sketch9.addConstraint(Sketcher.Constraint("Vertical", 26))
sketch9.addConstraint(Sketcher.Constraint("Horizontal", 27))
sketch9.addConstraint(Sketcher.Constraint("Vertical", 28))
sketch9.addConstraint(Sketcher.Constraint("Horizontal", 29))
sketch9.addConstraint(Sketcher.Constraint("Vertical", 30))
sketch9.addConstraint(Sketcher.Constraint("Horizontal", 31))
sketch9.addConstraint(Sketcher.Constraint("Vertical", 32))
sketch9.addConstraint(Sketcher.Constraint("Horizontal", 33))
sketch9.addConstraint(Sketcher.Constraint("Vertical", 34))
sketch9.addConstraint(Sketcher.Constraint("Horizontal", 35))
sketch9.addConstraint(Sketcher.Constraint("Symmetric", 18, 2, 24, 2, -1, 1))
sketch9.addConstraint(Sketcher.Constraint("Symmetric", 20, 2, 26, 2, -1, 1))
sketch9.addConstraint(Sketcher.Constraint("Symmetric", 22, 2, 28, 2, -1, 1))
sketch9.addConstraint(Sketcher.Constraint("Symmetric", 12, 2, 30, 2, -1, 1))
sketch9.addConstraint(Sketcher.Constraint("Symmetric", 14, 2, 32, 2, -1, 1))
sketch9.addConstraint(Sketcher.Constraint("Symmetric", 16, 2, 34, 2, -1, 1))
sketch9.addConstraint(Sketcher.Constraint("Symmetric", 5, 2, 8, 2, -2))
sketch9.addConstraint(Sketcher.Constraint("Symmetric", 3, 2, 10, 2, -2))
sketch9.addConstraint(Sketcher.Constraint("Symmetric", 13, 2, 24, 2, -2))
sketch9.addConstraint(Sketcher.Constraint("Symmetric", 23, 2, 26, 2, -2))
sketch9.addConstraint(Sketcher.Constraint("Horizontal", 17, 2, 20, 2))
sketch9.addConstraint(Sketcher.Constraint("Horizontal", 15, 2, 22, 2))
sketch9.addConstraint(Sketcher.Constraint("Vertical", 2, 2, 5, 2))
sketch9.addConstraint(Sketcher.Constraint("Vertical", 0, 2, 7, 2))
sketch9.addConstraint(Sketcher.Constraint("Equal", 7, 13))
sketch9.addConstraint(Sketcher.Constraint("Equal", 11, 15))
sketch9.addConstraint(Sketcher.Constraint("Equal", 17, 21))
sketch9.addConstraint(Sketcher.Constraint("Equal", 35, 0))
sketch9.addConstraint(Sketcher.Constraint("Equal", 31, 4))
sketch9.addConstraint(Sketcher.Constraint("Equal", 2, 6))
sketch9.addConstraint(Sketcher.Constraint("Equal", 8, 12))
sketch9.addConstraint(Sketcher.Constraint("Equal", 10, 16))
sketch9.addConstraint(Sketcher.Constraint("DistanceX", 1, 1, 1, 2, Q("0.2 mm")))
sketch9.addConstraint(Sketcher.Constraint("DistanceX", 3, 1, 3, 2, Q("0.9 mm")))
sketch9.addConstraint(Sketcher.Constraint("DistanceY", 0, 2, -1, 1, Q("2.878461 mm")))
sketch9.addConstraint(Sketcher.Constraint("DistanceX", 12, 2, -1, 1, Q("2.33923 mm")))
pocket2 = body.newObject("PartDesign::Pocket", "Pocket001")
pocket2.Profile = sketch9
pocket2.Length = 5
pocket2.Reversed = True

doc.recompute()
